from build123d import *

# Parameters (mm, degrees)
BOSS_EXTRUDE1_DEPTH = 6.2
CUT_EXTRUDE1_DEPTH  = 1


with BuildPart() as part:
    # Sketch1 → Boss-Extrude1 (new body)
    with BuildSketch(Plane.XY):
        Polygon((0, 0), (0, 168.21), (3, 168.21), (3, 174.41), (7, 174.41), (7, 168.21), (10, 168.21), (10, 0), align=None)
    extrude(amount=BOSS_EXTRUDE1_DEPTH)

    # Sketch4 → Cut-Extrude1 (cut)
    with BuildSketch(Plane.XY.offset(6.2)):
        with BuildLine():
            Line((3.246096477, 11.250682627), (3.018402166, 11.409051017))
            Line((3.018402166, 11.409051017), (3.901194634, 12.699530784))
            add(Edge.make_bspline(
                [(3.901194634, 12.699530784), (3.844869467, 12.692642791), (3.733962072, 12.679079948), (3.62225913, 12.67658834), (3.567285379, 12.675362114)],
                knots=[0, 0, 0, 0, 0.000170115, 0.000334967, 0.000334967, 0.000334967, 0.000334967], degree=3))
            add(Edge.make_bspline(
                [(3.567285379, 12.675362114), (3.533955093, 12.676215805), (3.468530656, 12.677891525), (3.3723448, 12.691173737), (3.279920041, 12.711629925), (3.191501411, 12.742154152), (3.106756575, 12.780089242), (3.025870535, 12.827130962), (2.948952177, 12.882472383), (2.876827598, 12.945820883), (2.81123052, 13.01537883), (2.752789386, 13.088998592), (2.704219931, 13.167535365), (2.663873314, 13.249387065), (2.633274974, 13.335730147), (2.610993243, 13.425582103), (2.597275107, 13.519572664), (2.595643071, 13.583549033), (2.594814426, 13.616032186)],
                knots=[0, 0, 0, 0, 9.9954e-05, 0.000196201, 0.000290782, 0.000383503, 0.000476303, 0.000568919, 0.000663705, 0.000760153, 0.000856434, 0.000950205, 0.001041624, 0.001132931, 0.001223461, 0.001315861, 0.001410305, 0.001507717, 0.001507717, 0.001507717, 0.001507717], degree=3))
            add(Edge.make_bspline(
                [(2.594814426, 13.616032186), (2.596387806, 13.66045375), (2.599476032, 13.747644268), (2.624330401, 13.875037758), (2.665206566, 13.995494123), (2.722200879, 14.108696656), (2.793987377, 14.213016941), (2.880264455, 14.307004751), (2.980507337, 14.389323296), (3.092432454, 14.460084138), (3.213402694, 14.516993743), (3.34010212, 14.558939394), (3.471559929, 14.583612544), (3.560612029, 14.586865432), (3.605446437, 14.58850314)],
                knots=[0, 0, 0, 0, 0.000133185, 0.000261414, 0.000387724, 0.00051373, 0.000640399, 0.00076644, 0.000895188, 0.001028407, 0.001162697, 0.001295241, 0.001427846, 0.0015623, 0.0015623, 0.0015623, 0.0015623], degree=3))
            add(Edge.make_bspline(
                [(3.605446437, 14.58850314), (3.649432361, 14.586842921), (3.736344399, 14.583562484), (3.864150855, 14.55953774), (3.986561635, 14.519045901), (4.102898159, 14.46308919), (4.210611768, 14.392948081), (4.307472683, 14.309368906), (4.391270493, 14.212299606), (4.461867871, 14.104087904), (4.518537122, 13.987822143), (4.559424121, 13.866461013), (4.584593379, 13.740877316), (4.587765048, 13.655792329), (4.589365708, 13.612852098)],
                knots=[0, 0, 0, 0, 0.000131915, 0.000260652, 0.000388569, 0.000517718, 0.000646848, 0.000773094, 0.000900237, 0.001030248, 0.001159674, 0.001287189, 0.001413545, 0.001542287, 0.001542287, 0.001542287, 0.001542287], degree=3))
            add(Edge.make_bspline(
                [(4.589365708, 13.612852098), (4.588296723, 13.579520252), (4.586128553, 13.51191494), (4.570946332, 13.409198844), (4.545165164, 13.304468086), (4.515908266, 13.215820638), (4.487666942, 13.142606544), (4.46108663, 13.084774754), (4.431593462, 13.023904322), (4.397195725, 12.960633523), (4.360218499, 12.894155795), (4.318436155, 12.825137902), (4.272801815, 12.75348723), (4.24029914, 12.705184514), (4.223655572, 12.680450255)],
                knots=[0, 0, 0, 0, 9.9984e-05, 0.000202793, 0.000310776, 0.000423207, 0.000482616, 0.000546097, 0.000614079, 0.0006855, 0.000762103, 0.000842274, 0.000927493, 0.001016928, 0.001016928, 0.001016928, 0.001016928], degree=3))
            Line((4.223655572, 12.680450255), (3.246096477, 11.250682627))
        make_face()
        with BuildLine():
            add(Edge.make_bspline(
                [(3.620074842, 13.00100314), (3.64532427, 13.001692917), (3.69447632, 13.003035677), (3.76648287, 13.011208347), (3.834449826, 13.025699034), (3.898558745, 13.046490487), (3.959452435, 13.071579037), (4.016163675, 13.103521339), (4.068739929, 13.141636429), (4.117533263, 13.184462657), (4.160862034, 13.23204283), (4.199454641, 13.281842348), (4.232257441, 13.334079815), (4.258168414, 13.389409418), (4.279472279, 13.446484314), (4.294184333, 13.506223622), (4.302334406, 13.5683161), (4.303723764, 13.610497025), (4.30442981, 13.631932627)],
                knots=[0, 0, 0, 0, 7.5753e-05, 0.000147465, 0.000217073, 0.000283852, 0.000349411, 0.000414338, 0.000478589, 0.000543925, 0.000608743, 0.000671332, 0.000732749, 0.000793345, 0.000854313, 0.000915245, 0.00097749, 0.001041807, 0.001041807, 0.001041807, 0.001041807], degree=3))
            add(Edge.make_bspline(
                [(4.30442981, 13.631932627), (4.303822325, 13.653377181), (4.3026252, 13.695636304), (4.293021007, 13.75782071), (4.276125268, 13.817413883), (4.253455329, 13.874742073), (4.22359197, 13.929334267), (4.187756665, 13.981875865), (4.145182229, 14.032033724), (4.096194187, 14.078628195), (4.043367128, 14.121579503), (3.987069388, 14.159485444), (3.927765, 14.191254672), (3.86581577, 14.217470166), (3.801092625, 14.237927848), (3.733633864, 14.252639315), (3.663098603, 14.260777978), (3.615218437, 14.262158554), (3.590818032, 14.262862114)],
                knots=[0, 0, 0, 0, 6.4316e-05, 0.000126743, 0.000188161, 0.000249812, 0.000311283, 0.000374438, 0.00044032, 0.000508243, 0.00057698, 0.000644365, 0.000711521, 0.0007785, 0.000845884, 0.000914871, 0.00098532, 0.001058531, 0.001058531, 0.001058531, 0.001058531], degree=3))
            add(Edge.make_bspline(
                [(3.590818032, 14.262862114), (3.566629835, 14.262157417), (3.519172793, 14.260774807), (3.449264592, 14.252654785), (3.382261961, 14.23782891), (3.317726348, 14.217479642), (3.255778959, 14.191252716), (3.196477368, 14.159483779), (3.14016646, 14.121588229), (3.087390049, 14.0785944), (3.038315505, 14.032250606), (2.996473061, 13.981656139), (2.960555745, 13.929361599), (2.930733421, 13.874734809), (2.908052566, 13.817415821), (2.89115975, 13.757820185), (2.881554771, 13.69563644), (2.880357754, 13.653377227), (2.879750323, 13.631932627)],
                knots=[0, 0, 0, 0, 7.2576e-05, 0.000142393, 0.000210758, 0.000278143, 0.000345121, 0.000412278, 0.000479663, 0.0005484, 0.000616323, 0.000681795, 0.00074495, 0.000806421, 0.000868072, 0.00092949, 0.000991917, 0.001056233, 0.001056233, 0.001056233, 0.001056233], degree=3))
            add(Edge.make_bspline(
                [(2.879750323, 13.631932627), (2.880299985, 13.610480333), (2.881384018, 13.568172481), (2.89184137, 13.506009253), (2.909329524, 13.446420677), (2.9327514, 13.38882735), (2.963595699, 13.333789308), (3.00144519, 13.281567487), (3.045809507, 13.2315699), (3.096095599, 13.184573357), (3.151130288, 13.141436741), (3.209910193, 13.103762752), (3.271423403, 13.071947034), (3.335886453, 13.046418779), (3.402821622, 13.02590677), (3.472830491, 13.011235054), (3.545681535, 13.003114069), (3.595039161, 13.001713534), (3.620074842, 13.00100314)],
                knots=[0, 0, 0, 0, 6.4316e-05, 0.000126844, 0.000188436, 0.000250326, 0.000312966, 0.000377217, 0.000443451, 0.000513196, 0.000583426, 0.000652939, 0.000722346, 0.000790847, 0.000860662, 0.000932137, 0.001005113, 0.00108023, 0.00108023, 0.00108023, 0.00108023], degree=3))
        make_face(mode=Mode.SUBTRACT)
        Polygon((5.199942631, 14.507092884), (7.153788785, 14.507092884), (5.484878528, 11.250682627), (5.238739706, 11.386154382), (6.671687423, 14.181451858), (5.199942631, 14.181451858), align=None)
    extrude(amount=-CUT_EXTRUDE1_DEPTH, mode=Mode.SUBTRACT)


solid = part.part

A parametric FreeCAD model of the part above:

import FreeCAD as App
import Part
import Sketcher

V = App.Vector

doc = App.newDocument("Part")
body = doc.addObject("PartDesign::Body", "Body")

# Sketch on XY plane
sketch1 = body.newObject("Sketcher::SketchObject", "Sketch")
sketch1.AttachmentSupport = (doc.getObject("XY_Plane"), [""])
sketch1.MapMode = "FlatFace"
sketch1.addGeometry([
    Part.LineSegment(V(0, 168.2, 0), V(0, 0, 0)),  # 0
    Part.LineSegment(V(0, 0, 0), V(10, 0, 0)),  # 1
    Part.LineSegment(V(10, 0, 0), V(10, 168.2, 0)),  # 2
    Part.LineSegment(V(10, 168.2, 0), V(7, 168.2, 0)),  # 3
    Part.LineSegment(V(7, 168.2, 0), V(7, 174.4, 0)),  # 4
    Part.LineSegment(V(7, 174.4, 0), V(3, 174.4, 0)),  # 5
    Part.LineSegment(V(3, 174.4, 0), V(3, 168.2, 0)),  # 6
    Part.LineSegment(V(3, 168.2, 0), V(0, 168.2, 0)),  # 7
], False)
sketch1.addConstraint([
    Sketcher.Constraint("Coincident", 0, 2, 1, 1),
    Sketcher.Constraint("Coincident", 1, 2, 2, 1),
    Sketcher.Constraint("Coincident", 2, 2, 3, 1),
    Sketcher.Constraint("Coincident", 3, 2, 4, 1),
    Sketcher.Constraint("Coincident", 4, 2, 5, 1),
    Sketcher.Constraint("Coincident", 5, 2, 6, 1),
    Sketcher.Constraint("Coincident", 6, 2, 7, 1),
    Sketcher.Constraint("Coincident", 7, 2, 0, 1),
    Sketcher.Constraint("Vertical", 0),
    Sketcher.Constraint("Horizontal", 1),
    Sketcher.Constraint("Vertical", 2),
    Sketcher.Constraint("Horizontal", 3),
    Sketcher.Constraint("Vertical", 4),
    Sketcher.Constraint("Horizontal", 5),
    Sketcher.Constraint("Vertical", 6),
    Sketcher.Constraint("Horizontal", 7),
    Sketcher.Constraint("Coincident", 0, 2, -1, 1),
    Sketcher.Constraint("Horizontal", 3, 2, 6, 2),
    Sketcher.Constraint("Equal", 3, 7),
    Sketcher.Constraint("DistanceX", 1, 1, 1, 2, 10.0),
    Sketcher.Constraint("DistanceX", 3, 2, 3, 1, 3.0),
    Sketcher.Constraint("DistanceY", 4, 1, 4, 2, 6.2),
    Sketcher.Constraint("DistanceY", 0, 2, 0, 1, 168.21),
])
pad1 = body.newObject("PartDesign::Pad", "Pad")
pad1.Profile = sketch1
pad1.Length = 6.2

# Sketch on XY plane
sketch2 = body.newObject("Sketcher::SketchObject", "Sketch001")
sketch2.AttachmentSupport = (doc.getObject("XY_Plane"), [""])
sketch2.MapMode = "FlatFace"
sketch2.AttachmentOffset = App.Placement(V(0, 0, 6.2), App.Rotation())
sketch2.addGeometry([
    Part.LineSegment(V(3.018402, 11.409051, 0), V(3.246096, 11.250683, 0)),  # 0
    Part.LineSegment(V(3.246096, 11.250683, 0), V(4.223656, 12.68045, 0)),  # 1
    Part.BSplineCurve([V(4.589366, 13.612852, 0), V(4.588297, 13.57952, 0), V(4.586129, 13.511915, 0), V(4.570946, 13.409199, 0), V(4.545165, 13.304468, 0), V(4.515908, 13.215821, 0), V(4.487667, 13.142607, 0), V(4.461087, 13.084775, 0), V(4.431593, 13.023904, 0), V(4.397196, 12.960634, 0), V(4.360218, 12.894156, 0), V(4.318436, 12.825138, 0), V(4.272802, 12.753487, 0), V(4.240299, 12.705185, 0), V(4.223656, 12.68045, 0)], [4, 1, 1, 1, 1, 1, 1, 1, 1, 1, 1, 1, 4], [0, 0.000099984, 0.000202793, 0.000310776, 0.000423207, 0.000482616, 0.000546097, 0.000614079, 0.0006855, 0.000762103, 0.000842274, 0.000927493, 0.001016928], False, 3, [1, 1, 1, 1, 1, 1, 1, 1, 1, 1, 1, 1, 1, 1, 1], False),  # 2
    Part.BSplineCurve([V(3.605446, 14.588503, 0), V(3.649432, 14.586843, 0), V(3.736344, 14.583562, 0), V(3.864151, 14.559538, 0), V(3.986562, 14.519046, 0), V(4.102898, 14.463089, 0), V(4.210612, 14.392948, 0), V(4.307473, 14.309369, 0), V(4.39127, 14.2123, 0), V(4.461868, 14.104088, 0), V(4.518537, 13.987822, 0), V(4.559424, 13.866461, 0), V(4.584593, 13.740877, 0), V(4.587765, 13.655792, 0), V(4.589366, 13.612852, 0)], [4, 1, 1, 1, 1, 1, 1, 1, 1, 1, 1, 1, 4], [0, 0.000131915, 0.000260652, 0.000388569, 0.000517718, 0.000646848, 0.000773094, 0.000900237, 0.001030248, 0.001159674, 0.001287189, 0.001413545, 0.001542287], False, 3, [1, 1, 1, 1, 1, 1, 1, 1, 1, 1, 1, 1, 1, 1, 1], False),  # 3
    Part.BSplineCurve([V(2.594814, 13.616032, 0), V(2.596388, 13.660454, 0), V(2.599476, 13.747644, 0), V(2.62433, 13.875038, 0), V(2.665207, 13.995494, 0), V(2.722201, 14.108697, 0), V(2.793987, 14.213017, 0), V(2.880264, 14.307005, 0), V(2.980507, 14.389323, 0), V(3.092432, 14.460084, 0), V(3.213403, 14.516994, 0), V(3.340102, 14.558939, 0), V(3.47156, 14.583613, 0), V(3.560612, 14.586865, 0), V(3.605446, 14.588503, 0)], [4, 1, 1, 1, 1, 1, 1, 1, 1, 1, 1, 1, 4], [0, 0.000133185, 0.000261414, 0.000387724, 0.00051373, 0.000640399, 0.00076644, 0.000895188, 0.001028407, 0.001162697, 0.001295241, 0.001427846, 0.0015623], False, 3, [1, 1, 1, 1, 1, 1, 1, 1, 1, 1, 1, 1, 1, 1, 1], False),  # 4
    Part.BSplineCurve([V(3.567285, 12.675362, 0), V(3.533955, 12.676216, 0), V(3.468531, 12.677892, 0), V(3.372345, 12.691174, 0), V(3.27992, 12.71163, 0), V(3.191501, 12.742154, 0), V(3.106757, 12.780089, 0), V(3.025871, 12.827131, 0), V(2.948952, 12.882472, 0), V(2.876828, 12.945821, 0), V(2.811231, 13.015379, 0), V(2.752789, 13.088999, 0), V(2.70422, 13.167535, 0), V(2.663873, 13.249387, 0), V(2.633275, 13.33573, 0), V(2.610993, 13.425582, 0), V(2.597275, 13.519573, 0), V(2.595643, 13.583549, 0), V(2.594814, 13.616032, 0)], [4, 1, 1, 1, 1, 1, 1, 1, 1, 1, 1, 1, 1, 1, 1, 1, 4], [0, 0.000099954, 0.000196201, 0.000290782, 0.000383503, 0.000476303, 0.000568919, 0.000663705, 0.000760153, 0.000856434, 0.000950205, 0.001041624, 0.001132931, 0.001223461, 0.001315861, 0.001410305, 0.001507717], False, 3, [1, 1, 1, 1, 1, 1, 1, 1, 1, 1, 1, 1, 1, 1, 1, 1, 1, 1, 1], False),  # 5
    Part.BSplineCurve([V(3.901195, 12.699531, 0), V(3.844869, 12.692643, 0), V(3.733962, 12.67908, 0), V(3.622259, 12.676588, 0), V(3.567285, 12.675362, 0)], [4, 1, 4], [0, 0.000170115, 0.000334967], False, 3, [1, 1, 1, 1, 1], False),  # 6
    Part.LineSegment(V(3.901195, 12.699531, 0), V(3.018402, 11.409051, 0)),  # 7
    Part.BSplineCurve([V(2.87975, 13.631933, 0), V(2.8803, 13.61048, 0), V(2.881384, 13.568172, 0), V(2.891841, 13.506009, 0), V(2.90933, 13.446421, 0), V(2.932751, 13.388827, 0), V(2.963596, 13.333789, 0), V(3.001445, 13.281567, 0), V(3.04581, 13.23157, 0), V(3.096096, 13.184573, 0), V(3.15113, 13.141437, 0), V(3.20991, 13.103763, 0), V(3.271423, 13.071947, 0), V(3.335886, 13.046419, 0), V(3.402822, 13.025907, 0), V(3.47283, 13.011235, 0), V(3.545682, 13.003114, 0), V(3.595039, 13.001714, 0), V(3.620075, 13.001003, 0)], [4, 1, 1, 1, 1, 1, 1, 1, 1, 1, 1, 1, 1, 1, 1, 1, 4], [0, 0.000064316, 0.000126844, 0.000188436, 0.000250326, 0.000312966, 0.000377217, 0.000443451, 0.000513196, 0.000583426, 0.000652939, 0.000722346, 0.000790847, 0.000860662, 0.000932137, 0.001005113, 0.00108023], False, 3, [1, 1, 1, 1, 1, 1, 1, 1, 1, 1, 1, 1, 1, 1, 1, 1, 1, 1, 1], False),  # 8
    Part.BSplineCurve([V(3.590818, 14.262862, 0), V(3.56663, 14.262157, 0), V(3.519173, 14.260775, 0), V(3.449265, 14.252655, 0), V(3.382262, 14.237829, 0), V(3.317726, 14.21748, 0), V(3.255779, 14.191253, 0), V(3.196477, 14.159484, 0), V(3.140166, 14.121588, 0), V(3.08739, 14.078594, 0), V(3.038316, 14.032251, 0), V(2.996473, 13.981656, 0), V(2.960556, 13.929362, 0), V(2.930733, 13.874735, 0), V(2.908053, 13.817416, 0), V(2.89116, 13.75782, 0), V(2.881555, 13.695636, 0), V(2.880358, 13.653377, 0), V(2.87975, 13.631933, 0)], [4, 1, 1, 1, 1, 1, 1, 1, 1, 1, 1, 1, 1, 1, 1, 1, 4], [0, 0.000072576, 0.000142393, 0.000210758, 0.000278143, 0.000345121, 0.000412278, 0.000479663, 0.0005484, 0.000616323, 0.000681795, 0.00074495, 0.000806421, 0.000868072, 0.00092949, 0.000991917, 0.001056233], False, 3, [1, 1, 1, 1, 1, 1, 1, 1, 1, 1, 1, 1, 1, 1, 1, 1, 1, 1, 1], False),  # 9
    Part.BSplineCurve([V(4.30443, 13.631933, 0), V(4.303822, 13.653377, 0), V(4.302625, 13.695636, 0), V(4.293021, 13.757821, 0), V(4.276125, 13.817414, 0), V(4.253455, 13.874742, 0), V(4.223592, 13.929334, 0), V(4.187757, 13.981876, 0), V(4.145182, 14.032034, 0), V(4.096194, 14.078628, 0), V(4.043367, 14.12158, 0), V(3.987069, 14.159485, 0), V(3.927765, 14.191255, 0), V(3.865816, 14.21747, 0), V(3.801093, 14.237928, 0), V(3.733634, 14.252639, 0), V(3.663099, 14.260778, 0), V(3.615218, 14.262159, 0), V(3.590818, 14.262862, 0)], [4, 1, 1, 1, 1, 1, 1, 1, 1, 1, 1, 1, 1, 1, 1, 1, 4], [0, 0.000064316, 0.000126743, 0.000188161, 0.000249812, 0.000311283, 0.000374438, 0.00044032, 0.000508243, 0.00057698, 0.000644365, 0.000711521, 0.0007785, 0.000845884, 0.000914871, 0.00098532, 0.001058531], False, 3, [1, 1, 1, 1, 1, 1, 1, 1, 1, 1, 1, 1, 1, 1, 1, 1, 1, 1, 1], False),  # 10
    Part.BSplineCurve([V(3.620075, 13.001003, 0), V(3.645324, 13.001693, 0), V(3.694476, 13.003036, 0), V(3.766483, 13.011208, 0), V(3.83445, 13.025699, 0), V(3.898559, 13.04649, 0), V(3.959452, 13.071579, 0), V(4.016164, 13.103521, 0), V(4.06874, 13.141636, 0), V(4.117533, 13.184463, 0), V(4.160862, 13.232043, 0), V(4.199455, 13.281842, 0), V(4.232257, 13.33408, 0), V(4.258168, 13.389409, 0), V(4.279472, 13.446484, 0), V(4.294184, 13.506224, 0), V(4.302334, 13.568316, 0), V(4.303724, 13.610497, 0), V(4.30443, 13.631933, 0)], [4, 1, 1, 1, 1, 1, 1, 1, 1, 1, 1, 1, 1, 1, 1, 1, 4], [0, 0.000075753, 0.000147465, 0.000217073, 0.000283852, 0.000349411, 0.000414338, 0.000478589, 0.000543925, 0.000608743, 0.000671332, 0.000732749, 0.000793345, 0.000854313, 0.000915245, 0.00097749, 0.001041807], False, 3, [1, 1, 1, 1, 1, 1, 1, 1, 1, 1, 1, 1, 1, 1, 1, 1, 1, 1, 1], False),  # 11
    Part.LineSegment(V(7.153789, 14.507093, 0), V(5.199943, 14.507093, 0)),  # 12
    Part.LineSegment(V(5.199943, 14.507093, 0), V(5.199943, 14.181452, 0)),  # 13
    Part.LineSegment(V(5.199943, 14.181452, 0), V(6.671687, 14.181452, 0)),  # 14
    Part.LineSegment(V(6.671687, 14.181452, 0), V(5.23874, 11.386154, 0)),  # 15
    Part.LineSegment(V(5.23874, 11.386154, 0), V(5.484879, 11.250683, 0)),  # 16
    Part.LineSegment(V(5.484879, 11.250683, 0), V(7.153789, 14.507093, 0)),  # 17
], False)
sketch2.addConstraint([
    Sketcher.Constraint("Block", 2),
    Sketcher.Constraint("Block", 3),
    Sketcher.Constraint("Block", 4),
    Sketcher.Constraint("Block", 5),
    Sketcher.Constraint("Block", 6),
    Sketcher.Constraint("Block", 8),
    Sketcher.Constraint("Block", 9),
    Sketcher.Constraint("Block", 10),
    Sketcher.Constraint("Block", 11),
    Sketcher.Constraint("Coincident", 0, 2, 1, 1),
    Sketcher.Constraint("Coincident", 1, 2, 2, 2),
    Sketcher.Constraint("Coincident", 6, 1, 7, 1),
    Sketcher.Constraint("Coincident", 7, 2, 0, 1),
    Sketcher.Constraint("Coincident", 12, 2, 13, 1),
    Sketcher.Constraint("Coincident", 13, 2, 14, 1),
    Sketcher.Constraint("Coincident", 14, 2, 15, 1),
    Sketcher.Constraint("Coincident", 15, 2, 16, 1),
    Sketcher.Constraint("Coincident", 16, 2, 17, 1),
    Sketcher.Constraint("Coincident", 17, 2, 12, 1),
    Sketcher.Constraint("Horizontal", 12),
    Sketcher.Constraint("Vertical", 13),
    Sketcher.Constraint("Horizontal", 14),
    Sketcher.Constraint("Horizontal", 0, 2, 16, 2),
    Sketcher.Constraint("DistanceY", 1, 2, 13, 2, 1.501002),
    Sketcher.Constraint("DistanceY", 13, 2, 13, 1, 0.325641),
    Sketcher.Constraint("DistanceY", 7, 2, 1, 2, 1.271399),
    Sketcher.Constraint("DistanceX", 14, 2, 17, 2, 0.482101),
    Sketcher.Constraint("Distance", 1, 1.73201),
    Sketcher.Constraint("Distance", 7, 1.563541),
    Sketcher.Constraint("DistanceX", 12, 2, 12, 1, 1.953846),
    Sketcher.Constraint("DistanceX", -1, 1, 15, 2, 5.23874),
    Sketcher.Constraint("DistanceX", -1, 1, 16, 2, 5.484879),
    Sketcher.Constraint("DistanceX", -1, 1, 17, 2, 7.153789),
    Sketcher.Constraint("DistanceX", 0, 2, 1, 2, 0.977559),
    Sketcher.Constraint("DistanceY", 0, 2, 15, 2, 0.135472),
])
pocket1 = body.newObject("PartDesign::Pocket", "Pocket")
pocket1.Profile = sketch2
pocket1.Length = 1

doc.recompute()
